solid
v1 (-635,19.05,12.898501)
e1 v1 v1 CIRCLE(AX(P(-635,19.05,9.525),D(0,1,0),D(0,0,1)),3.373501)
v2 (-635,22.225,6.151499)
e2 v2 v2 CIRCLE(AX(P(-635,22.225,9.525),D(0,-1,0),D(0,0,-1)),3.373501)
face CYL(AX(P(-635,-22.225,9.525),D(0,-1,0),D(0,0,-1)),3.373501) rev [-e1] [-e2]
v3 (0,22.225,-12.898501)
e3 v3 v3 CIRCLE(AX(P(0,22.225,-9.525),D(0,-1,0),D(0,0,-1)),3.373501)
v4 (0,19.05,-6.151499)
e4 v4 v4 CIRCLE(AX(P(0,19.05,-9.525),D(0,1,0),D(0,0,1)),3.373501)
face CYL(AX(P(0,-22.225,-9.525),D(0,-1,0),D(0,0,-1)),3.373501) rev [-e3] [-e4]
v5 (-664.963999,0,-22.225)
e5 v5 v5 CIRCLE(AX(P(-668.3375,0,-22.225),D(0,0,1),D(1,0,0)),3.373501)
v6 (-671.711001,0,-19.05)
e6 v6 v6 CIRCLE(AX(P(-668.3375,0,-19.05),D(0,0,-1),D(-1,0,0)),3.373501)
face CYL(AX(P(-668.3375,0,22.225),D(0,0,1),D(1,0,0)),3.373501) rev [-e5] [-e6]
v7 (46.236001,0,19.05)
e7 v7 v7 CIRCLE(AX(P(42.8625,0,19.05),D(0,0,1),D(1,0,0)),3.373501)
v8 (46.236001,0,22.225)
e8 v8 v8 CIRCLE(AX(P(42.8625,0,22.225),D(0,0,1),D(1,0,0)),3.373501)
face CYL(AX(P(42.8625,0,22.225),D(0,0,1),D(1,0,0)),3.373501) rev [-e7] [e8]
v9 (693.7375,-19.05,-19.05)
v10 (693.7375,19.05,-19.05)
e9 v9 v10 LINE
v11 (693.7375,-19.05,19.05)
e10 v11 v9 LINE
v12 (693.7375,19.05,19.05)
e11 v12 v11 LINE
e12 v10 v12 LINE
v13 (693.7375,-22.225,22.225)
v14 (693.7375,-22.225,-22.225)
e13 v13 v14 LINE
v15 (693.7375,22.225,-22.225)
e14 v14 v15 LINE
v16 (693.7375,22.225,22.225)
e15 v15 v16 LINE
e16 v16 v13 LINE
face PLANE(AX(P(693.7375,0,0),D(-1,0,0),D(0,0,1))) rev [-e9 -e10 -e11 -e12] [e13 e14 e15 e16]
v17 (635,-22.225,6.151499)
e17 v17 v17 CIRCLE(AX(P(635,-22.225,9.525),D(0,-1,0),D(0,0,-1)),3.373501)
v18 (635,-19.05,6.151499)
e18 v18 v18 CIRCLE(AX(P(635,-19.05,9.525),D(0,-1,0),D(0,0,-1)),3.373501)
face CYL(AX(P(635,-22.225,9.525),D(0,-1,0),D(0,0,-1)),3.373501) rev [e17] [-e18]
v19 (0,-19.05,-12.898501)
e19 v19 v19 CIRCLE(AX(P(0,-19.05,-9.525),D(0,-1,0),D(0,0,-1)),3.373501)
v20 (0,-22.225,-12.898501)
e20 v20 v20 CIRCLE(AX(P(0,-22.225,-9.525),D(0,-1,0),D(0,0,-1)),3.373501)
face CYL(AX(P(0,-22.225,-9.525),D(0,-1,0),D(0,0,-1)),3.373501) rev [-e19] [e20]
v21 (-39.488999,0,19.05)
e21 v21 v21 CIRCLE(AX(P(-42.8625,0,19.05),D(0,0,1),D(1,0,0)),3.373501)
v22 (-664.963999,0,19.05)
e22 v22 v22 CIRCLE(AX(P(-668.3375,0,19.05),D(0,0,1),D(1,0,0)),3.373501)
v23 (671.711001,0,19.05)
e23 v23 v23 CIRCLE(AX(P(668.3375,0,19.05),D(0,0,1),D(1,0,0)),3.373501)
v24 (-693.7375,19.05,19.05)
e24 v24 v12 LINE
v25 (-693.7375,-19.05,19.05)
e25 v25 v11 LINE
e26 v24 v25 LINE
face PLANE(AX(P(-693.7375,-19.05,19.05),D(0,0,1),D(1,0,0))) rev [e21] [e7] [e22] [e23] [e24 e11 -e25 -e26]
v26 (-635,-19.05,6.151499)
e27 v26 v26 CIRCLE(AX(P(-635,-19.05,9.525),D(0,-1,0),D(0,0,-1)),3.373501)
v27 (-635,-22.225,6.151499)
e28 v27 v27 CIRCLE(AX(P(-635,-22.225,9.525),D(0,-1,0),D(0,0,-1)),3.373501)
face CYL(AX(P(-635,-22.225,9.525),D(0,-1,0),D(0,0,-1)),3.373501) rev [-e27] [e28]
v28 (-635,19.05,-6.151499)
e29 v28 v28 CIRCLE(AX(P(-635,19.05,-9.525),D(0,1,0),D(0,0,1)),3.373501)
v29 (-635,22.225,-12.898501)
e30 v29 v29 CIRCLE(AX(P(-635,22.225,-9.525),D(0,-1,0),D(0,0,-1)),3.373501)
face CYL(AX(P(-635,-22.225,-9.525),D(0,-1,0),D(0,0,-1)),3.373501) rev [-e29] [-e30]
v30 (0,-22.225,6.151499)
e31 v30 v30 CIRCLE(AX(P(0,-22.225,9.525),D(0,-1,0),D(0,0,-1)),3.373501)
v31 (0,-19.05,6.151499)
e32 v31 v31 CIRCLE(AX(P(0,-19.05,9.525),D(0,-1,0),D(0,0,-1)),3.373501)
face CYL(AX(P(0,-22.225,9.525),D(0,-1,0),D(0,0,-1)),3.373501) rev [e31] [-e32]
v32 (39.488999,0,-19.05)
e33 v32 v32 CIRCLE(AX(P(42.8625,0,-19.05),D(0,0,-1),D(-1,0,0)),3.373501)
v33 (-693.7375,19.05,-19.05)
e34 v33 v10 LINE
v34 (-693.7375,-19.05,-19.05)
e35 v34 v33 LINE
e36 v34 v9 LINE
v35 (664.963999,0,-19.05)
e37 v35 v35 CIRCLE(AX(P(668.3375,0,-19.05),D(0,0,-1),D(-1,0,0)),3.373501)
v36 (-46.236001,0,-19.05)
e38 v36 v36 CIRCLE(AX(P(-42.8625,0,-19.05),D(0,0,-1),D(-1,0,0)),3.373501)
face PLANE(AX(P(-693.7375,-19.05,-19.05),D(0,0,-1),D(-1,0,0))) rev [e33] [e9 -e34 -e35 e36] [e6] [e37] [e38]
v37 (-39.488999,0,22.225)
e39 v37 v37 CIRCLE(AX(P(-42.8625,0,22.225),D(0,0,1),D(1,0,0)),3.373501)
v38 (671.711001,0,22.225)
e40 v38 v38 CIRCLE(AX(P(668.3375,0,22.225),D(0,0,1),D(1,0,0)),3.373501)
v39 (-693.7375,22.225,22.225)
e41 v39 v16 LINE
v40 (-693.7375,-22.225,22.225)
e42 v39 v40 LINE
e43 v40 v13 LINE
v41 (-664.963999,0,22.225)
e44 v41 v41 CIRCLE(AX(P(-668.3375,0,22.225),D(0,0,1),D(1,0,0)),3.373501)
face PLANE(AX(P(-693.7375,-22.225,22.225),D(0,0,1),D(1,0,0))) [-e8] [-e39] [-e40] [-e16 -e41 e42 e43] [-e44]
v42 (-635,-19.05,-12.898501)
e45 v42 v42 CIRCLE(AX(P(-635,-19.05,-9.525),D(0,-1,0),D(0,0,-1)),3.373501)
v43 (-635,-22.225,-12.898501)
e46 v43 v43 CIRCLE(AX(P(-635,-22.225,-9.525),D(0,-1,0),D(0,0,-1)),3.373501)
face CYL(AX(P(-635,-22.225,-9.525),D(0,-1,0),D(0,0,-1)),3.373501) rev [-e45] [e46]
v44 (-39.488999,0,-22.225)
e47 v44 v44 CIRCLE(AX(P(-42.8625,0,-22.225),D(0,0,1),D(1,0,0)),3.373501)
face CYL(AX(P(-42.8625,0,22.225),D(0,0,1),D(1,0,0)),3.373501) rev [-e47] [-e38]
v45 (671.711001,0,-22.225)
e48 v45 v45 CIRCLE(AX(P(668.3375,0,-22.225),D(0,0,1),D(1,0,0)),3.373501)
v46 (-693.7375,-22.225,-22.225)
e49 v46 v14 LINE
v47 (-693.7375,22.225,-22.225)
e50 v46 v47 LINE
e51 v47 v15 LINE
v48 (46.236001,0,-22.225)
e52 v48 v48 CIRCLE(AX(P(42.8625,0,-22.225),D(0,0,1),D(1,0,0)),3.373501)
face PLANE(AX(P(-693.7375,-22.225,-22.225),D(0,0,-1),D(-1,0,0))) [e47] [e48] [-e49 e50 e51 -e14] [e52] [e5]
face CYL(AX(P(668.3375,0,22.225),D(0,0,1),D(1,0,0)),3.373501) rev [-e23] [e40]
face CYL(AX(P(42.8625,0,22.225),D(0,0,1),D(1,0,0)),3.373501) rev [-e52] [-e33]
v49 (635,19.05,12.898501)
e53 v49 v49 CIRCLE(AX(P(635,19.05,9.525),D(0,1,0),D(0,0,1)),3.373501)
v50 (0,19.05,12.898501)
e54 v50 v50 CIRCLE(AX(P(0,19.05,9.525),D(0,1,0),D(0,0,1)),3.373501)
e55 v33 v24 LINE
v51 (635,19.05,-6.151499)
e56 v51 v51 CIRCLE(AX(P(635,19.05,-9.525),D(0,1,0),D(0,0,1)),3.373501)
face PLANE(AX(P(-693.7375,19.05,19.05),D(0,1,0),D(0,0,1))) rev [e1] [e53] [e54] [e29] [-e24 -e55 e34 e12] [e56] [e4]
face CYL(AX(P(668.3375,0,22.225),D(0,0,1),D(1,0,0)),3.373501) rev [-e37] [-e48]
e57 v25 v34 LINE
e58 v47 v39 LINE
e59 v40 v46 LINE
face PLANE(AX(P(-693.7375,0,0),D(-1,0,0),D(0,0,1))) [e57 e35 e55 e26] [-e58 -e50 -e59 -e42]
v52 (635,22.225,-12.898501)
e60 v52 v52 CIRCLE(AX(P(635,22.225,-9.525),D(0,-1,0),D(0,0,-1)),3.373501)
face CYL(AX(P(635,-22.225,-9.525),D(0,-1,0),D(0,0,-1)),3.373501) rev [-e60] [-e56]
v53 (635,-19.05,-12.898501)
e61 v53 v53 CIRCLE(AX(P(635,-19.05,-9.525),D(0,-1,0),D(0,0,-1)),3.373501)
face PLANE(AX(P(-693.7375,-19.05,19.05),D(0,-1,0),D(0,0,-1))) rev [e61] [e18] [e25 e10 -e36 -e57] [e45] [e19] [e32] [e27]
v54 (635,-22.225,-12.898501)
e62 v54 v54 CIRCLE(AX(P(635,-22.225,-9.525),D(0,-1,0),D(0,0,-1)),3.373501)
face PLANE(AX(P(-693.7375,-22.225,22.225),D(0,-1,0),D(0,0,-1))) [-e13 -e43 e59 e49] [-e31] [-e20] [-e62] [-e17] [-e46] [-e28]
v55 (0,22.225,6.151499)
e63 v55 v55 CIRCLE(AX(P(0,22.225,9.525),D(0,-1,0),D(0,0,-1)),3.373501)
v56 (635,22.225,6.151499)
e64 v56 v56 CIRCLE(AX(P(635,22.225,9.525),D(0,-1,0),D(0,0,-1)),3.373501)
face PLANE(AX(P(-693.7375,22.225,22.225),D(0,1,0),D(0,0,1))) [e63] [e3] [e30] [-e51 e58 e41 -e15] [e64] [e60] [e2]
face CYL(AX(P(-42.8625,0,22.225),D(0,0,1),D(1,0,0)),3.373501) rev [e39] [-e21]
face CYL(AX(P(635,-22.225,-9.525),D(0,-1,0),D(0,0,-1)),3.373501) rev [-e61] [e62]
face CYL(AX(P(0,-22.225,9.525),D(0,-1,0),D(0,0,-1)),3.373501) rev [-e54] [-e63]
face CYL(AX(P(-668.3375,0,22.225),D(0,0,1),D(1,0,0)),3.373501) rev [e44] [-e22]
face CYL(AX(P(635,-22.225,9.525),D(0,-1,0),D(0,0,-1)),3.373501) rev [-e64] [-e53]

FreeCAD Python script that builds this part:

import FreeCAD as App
import Part
import Sketcher
Q = App.Units.Quantity

doc = App.newDocument("Part")
body = doc.addObject("PartDesign::Body", "Body")

# Sketch on YZ plane
sketch1 = body.newObject("Sketcher::SketchObject", "Sketch")
sketch1.AttachmentSupport = (doc.getObject("YZ_Plane"), [""])
sketch1.MapMode = "FlatFace"
sketch1.addGeometry(Part.LineSegment(App.Vector(22, 22, 0), App.Vector(-22, 22, 0)), False)
sketch1.addGeometry(Part.LineSegment(App.Vector(-22, 22, 0), App.Vector(-22, -22, 0)), False)
sketch1.addGeometry(Part.LineSegment(App.Vector(-22, -22, 0), App.Vector(22, -22, 0)), False)
sketch1.addGeometry(Part.LineSegment(App.Vector(22, -22, 0), App.Vector(22, 22, 0)), False)
sketch1.addGeometry(Part.LineSegment(App.Vector(-19, -19, 0), App.Vector(-19, 19, 0)), False)
sketch1.addGeometry(Part.LineSegment(App.Vector(-19, 19, 0), App.Vector(19, 19, 0)), False)
sketch1.addGeometry(Part.LineSegment(App.Vector(19, 19, 0), App.Vector(19, -19, 0)), False)
sketch1.addGeometry(Part.LineSegment(App.Vector(19, -19, 0), App.Vector(-19, -19, 0)), False)
sketch1.addConstraint(Sketcher.Constraint("Coincident", 0, 2, 1, 1))
sketch1.addConstraint(Sketcher.Constraint("Coincident", 1, 2, 2, 1))
sketch1.addConstraint(Sketcher.Constraint("Coincident", 2, 2, 3, 1))
sketch1.addConstraint(Sketcher.Constraint("Coincident", 3, 2, 0, 1))
sketch1.addConstraint(Sketcher.Constraint("Coincident", 4, 2, 5, 1))
sketch1.addConstraint(Sketcher.Constraint("Coincident", 5, 2, 6, 1))
sketch1.addConstraint(Sketcher.Constraint("Coincident", 6, 2, 7, 1))
sketch1.addConstraint(Sketcher.Constraint("Coincident", 7, 2, 4, 1))
sketch1.addConstraint(Sketcher.Constraint("Horizontal", 0))
sketch1.addConstraint(Sketcher.Constraint("Vertical", 1))
sketch1.addConstraint(Sketcher.Constraint("Horizontal", 2))
sketch1.addConstraint(Sketcher.Constraint("Vertical", 3))
sketch1.addConstraint(Sketcher.Constraint("Vertical", 4))
sketch1.addConstraint(Sketcher.Constraint("Horizontal", 5))
sketch1.addConstraint(Sketcher.Constraint("Vertical", 6))
sketch1.addConstraint(Sketcher.Constraint("Horizontal", 7))
sketch1.addConstraint(Sketcher.Constraint("Symmetric", 0, 2, 2, 2, -1, 1))
sketch1.addConstraint(Sketcher.Constraint("Symmetric", 4, 2, 6, 2, -1, 1))
sketch1.addConstraint(Sketcher.Constraint("Equal", 2, 1))
sketch1.addConstraint(Sketcher.Constraint("Equal", 7, 4))
sketch1.addConstraint(Sketcher.Constraint("DistanceX", 5, 1, 5, 2, Q("1.5 in")))
sketch1.addConstraint(Sketcher.Constraint("DistanceX", 0, 2, 0, 1, Q("1.75 in")))
pad1 = body.newObject("PartDesign::Pad", "Pad")
pad1.Profile = sketch1
pad1.Type = "TwoLengths"
pad1.Length = Q("27.3125 in")
pad1.Length2 = Q("27.3125 in")

# Sketch on XY plane
sketch2 = body.newObject("Sketcher::SketchObject", "Sketch001")
sketch2.AttachmentSupport = (doc.getObject("XY_Plane"), [""])
sketch2.MapMode = "FlatFace"
sketch2.AttachmentOffset = App.Placement(App.Vector(0, 0, 0.875 * 25.4), App.Rotation())
sketch2.addGeometry(Part.Circle(App.Vector(42.9, 0, 0), App.Vector(0, 0, 1), 3.4), False)
sketch2.addGeometry(Part.Circle(App.Vector(-668.3, 0, 0), App.Vector(0, 0, 1), 3.4), False)
sketch2.addGeometry(Part.Circle(App.Vector(668.3, 0, 0), App.Vector(0, 0, 1), 3.4), False)
sketch2.addGeometry(Part.Circle(App.Vector(-42.9, 0, 0), App.Vector(0, 0, 1), 3.4), False)
sketch2.addConstraint(Sketcher.Constraint("Equal", 0, 1))
sketch2.addConstraint(Sketcher.Constraint("Equal", 1, 2))
sketch2.addConstraint(Sketcher.Constraint("Equal", 2, 3))
sketch2.addConstraint(Sketcher.Constraint("Symmetric", 1, 3, 2, 3, -1, 1))
sketch2.addConstraint(Sketcher.Constraint("Symmetric", 0, 3, 3, 3, -1, 1))
sketch2.addConstraint(Sketcher.Constraint("PointOnObject", 0, 3, -1))
sketch2.addConstraint(Sketcher.Constraint("PointOnObject", 1, 3, -1))
sketch2.addConstraint(Sketcher.Constraint("DistanceX", 1, 3, 0, 3, Q("28 in")))
sketch2.addConstraint(Sketcher.Constraint("DistanceX", -1, 1, 0, 3, Q("1.6875 in")))
sketch2.addConstraint(Sketcher.Constraint("Diameter", 0, Q("6.747002 mm")))
doc.recompute()
hole = body.newObject("PartDesign::Hole", "Hole")
hole.Profile = sketch2
hole.ThreadType = "None"
hole.Diameter = 6.747002
hole.DepthType = "ThroughAll"

# Sketch on XZ plane
sketch3 = body.newObject("Sketcher::SketchObject", "Sketch002")
sketch3.AttachmentSupport = (doc.getObject("XZ_Plane"), [""])
sketch3.MapMode = "FlatFace"
sketch3.AttachmentOffset = App.Placement(App.Vector(0, 0, 0.875 * 25.4), App.Rotation())
sketch3.addGeometry(Part.Circle(App.Vector(0, -9.5, 0), App.Vector(0, 0, 1), 3.4), False)
sketch3.addGeometry(Part.Circle(App.Vector(0, 9.5, 0), App.Vector(0, 0, 1), 3.4), False)
sketch3.addGeometry(Part.Circle(App.Vector(635, -9.5, 0), App.Vector(0, 0, 1), 3.4), False)
sketch3.addGeometry(Part.Circle(App.Vector(635, 9.5, 0), App.Vector(0, 0, 1), 3.4), False)
sketch3.addGeometry(Part.Circle(App.Vector(-635, 9.5, 0), App.Vector(0, 0, 1), 3.4), False)
sketch3.addGeometry(Part.Circle(App.Vector(-635, -9.5, 0), App.Vector(0, 0, 1), 3.4), False)
sketch3.addConstraint(Sketcher.Constraint("Equal", 0, 1))
sketch3.addConstraint(Sketcher.Constraint("Equal", 1, 2))
sketch3.addConstraint(Sketcher.Constraint("Equal", 2, 3))
sketch3.addConstraint(Sketcher.Constraint("Equal", 3, 4))
sketch3.addConstraint(Sketcher.Constraint("Equal", 4, 5))
sketch3.addConstraint(Sketcher.Constraint("Symmetric", 0, 3, 1, 3, -1, 1))
sketch3.addConstraint(Sketcher.Constraint("Symmetric", 2, 3, 4, 3, -1, 1))
sketch3.addConstraint(Sketcher.Constraint("Symmetric", 3, 3, 5, 3, -1, 1))
sketch3.addConstraint(Sketcher.Constraint("Symmetric", 3, 3, 4, 3, -2))
sketch3.addConstraint(Sketcher.Constraint("PointOnObject", 0, 3, -2))
sketch3.addConstraint(Sketcher.Constraint("Horizontal", 0, 3, 2, 3))
sketch3.addConstraint(Sketcher.Constraint("DistanceX", -1, 1, 2, 3, Q("25 in")))
sketch3.addConstraint(Sketcher.Constraint("DistanceY", 0, 3, 1, 3, Q("0.75 in")))
sketch3.addConstraint(Sketcher.Constraint("Diameter", 0, Q("6.747002 mm")))
doc.recompute()
hole2 = body.newObject("PartDesign::Hole", "Hole001")
hole2.Profile = sketch3
hole2.ThreadType = "None"
hole2.Diameter = 6.747002
hole2.DepthType = "ThroughAll"

doc.recompute()
